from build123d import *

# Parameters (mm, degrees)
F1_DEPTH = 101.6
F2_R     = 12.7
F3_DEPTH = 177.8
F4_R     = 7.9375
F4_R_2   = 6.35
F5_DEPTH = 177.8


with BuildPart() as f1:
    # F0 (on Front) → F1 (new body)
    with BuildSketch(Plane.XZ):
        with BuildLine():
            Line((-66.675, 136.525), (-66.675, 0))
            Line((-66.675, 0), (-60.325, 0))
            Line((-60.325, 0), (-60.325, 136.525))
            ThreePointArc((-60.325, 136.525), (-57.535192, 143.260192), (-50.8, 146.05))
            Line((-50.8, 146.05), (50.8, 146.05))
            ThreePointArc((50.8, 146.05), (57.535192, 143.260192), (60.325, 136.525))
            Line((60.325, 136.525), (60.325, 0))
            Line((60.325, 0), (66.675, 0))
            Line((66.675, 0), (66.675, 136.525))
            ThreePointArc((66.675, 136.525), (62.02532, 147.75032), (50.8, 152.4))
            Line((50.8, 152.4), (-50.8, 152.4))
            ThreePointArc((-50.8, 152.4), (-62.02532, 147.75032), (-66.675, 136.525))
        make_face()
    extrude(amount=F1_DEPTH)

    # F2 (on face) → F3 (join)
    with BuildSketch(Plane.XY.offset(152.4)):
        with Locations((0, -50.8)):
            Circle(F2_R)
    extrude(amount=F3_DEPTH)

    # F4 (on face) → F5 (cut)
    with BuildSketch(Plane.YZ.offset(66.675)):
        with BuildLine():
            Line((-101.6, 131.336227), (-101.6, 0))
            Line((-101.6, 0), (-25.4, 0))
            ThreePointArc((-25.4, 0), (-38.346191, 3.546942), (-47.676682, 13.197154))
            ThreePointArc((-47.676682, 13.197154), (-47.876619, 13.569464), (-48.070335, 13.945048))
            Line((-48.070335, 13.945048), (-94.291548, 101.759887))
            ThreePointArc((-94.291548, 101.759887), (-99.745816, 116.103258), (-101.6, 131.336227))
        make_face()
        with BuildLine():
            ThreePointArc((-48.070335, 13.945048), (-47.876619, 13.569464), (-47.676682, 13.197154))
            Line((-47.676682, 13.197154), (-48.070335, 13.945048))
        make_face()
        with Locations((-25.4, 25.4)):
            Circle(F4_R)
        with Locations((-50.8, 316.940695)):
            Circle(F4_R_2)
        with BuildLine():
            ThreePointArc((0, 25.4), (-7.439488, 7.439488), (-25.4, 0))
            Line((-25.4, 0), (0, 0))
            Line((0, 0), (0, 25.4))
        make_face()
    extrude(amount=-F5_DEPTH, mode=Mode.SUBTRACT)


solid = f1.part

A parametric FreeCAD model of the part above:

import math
import FreeCAD as App
import Part
import Sketcher
from FreeCAD import Vector
Q = App.Units.Quantity

doc = App.newDocument("Part")
body = doc.addObject("PartDesign::Body", "Body")

# Sketch on XZ plane
sketch1 = body.newObject("Sketcher::SketchObject", "Sketch")
sketch1.AttachmentSupport = (doc.getObject("XZ_Plane"), [""])
sketch1.MapMode = "FlatFace"
sketch1.addGeometry([
    Part.LineSegment(Vector(-67, 137, 0), Vector(-67, 0, 0)),  # 0
    Part.LineSegment(Vector(-67, 0, 0), Vector(-60, 0, 0)),  # 1
    Part.LineSegment(Vector(-60, 0, 0), Vector(-60, 137, 0)),  # 2
    Part.ArcOfCircle(Part.Circle(Vector(-51, 137, 0), Vector(0, 0, 1), 10), math.radians(90), math.radians(180)),  # 3
    Part.LineSegment(Vector(-51, 146, 0), Vector(51, 146, 0)),  # 4
    Part.ArcOfCircle(Part.Circle(Vector(51, 137, 0), Vector(0, 0, 1), 10), math.radians(0), math.radians(90)),  # 5
    Part.LineSegment(Vector(60, 137, 0), Vector(60, 0, 0)),  # 6
    Part.LineSegment(Vector(60, 0, 0), Vector(67, 0, 0)),  # 7
    Part.LineSegment(Vector(67, 0, 0), Vector(67, 137, 0)),  # 8
    Part.ArcOfCircle(Part.Circle(Vector(51, 137, 0), Vector(0, 0, 1), 16), math.radians(0), math.radians(90)),  # 9
    Part.LineSegment(Vector(51, 152, 0), Vector(-51, 152, 0)),  # 10
    Part.ArcOfCircle(Part.Circle(Vector(-51, 137, 0), Vector(0, 0, 1), 16), math.radians(90), math.radians(180)),  # 11
], False)
sketch1.addConstraint([
    Sketcher.Constraint("Coincident", 0, 2, 1, 1),
    Sketcher.Constraint("Coincident", 1, 2, 2, 1),
    Sketcher.Constraint("Tangent", 2, 2, 3, 2),
    Sketcher.Constraint("Tangent", 3, 1, 4, 1),
    Sketcher.Constraint("Tangent", 4, 2, 5, 2),
    Sketcher.Constraint("Tangent", 5, 1, 6, 1),
    Sketcher.Constraint("Coincident", 6, 2, 7, 1),
    Sketcher.Constraint("Coincident", 7, 2, 8, 1),
    Sketcher.Constraint("Tangent", 8, 2, 9, 1),
    Sketcher.Constraint("Tangent", 9, 2, 10, 1),
    Sketcher.Constraint("Tangent", 10, 2, 11, 1),
    Sketcher.Constraint("Tangent", 11, 2, 0, 1),
    Sketcher.Constraint("Vertical", 0),
    Sketcher.Constraint("Horizontal", 1),
    Sketcher.Constraint("Vertical", 2),
    Sketcher.Constraint("Horizontal", 4),
    Sketcher.Constraint("Vertical", 6),
    Sketcher.Constraint("Horizontal", 7),
    Sketcher.Constraint("Vertical", 8),
    Sketcher.Constraint("Horizontal", 10),
    Sketcher.Constraint("Coincident", 9, 3, 5, 3),
    Sketcher.Constraint("Coincident", 11, 3, 3, 3),
    Sketcher.Constraint("Equal", 3, 5),
    Sketcher.Constraint("Symmetric", 1, 2, 6, 2, -1, 1),
    Sketcher.Constraint("PointOnObject", 0, 2, -1),
    Sketcher.Constraint("DistanceX", 4, 1, 4, 2, Q("4 in")),
    Sketcher.Constraint("DistanceY", -1, 1, 9, 2, Q("6 in")),
    Sketcher.Constraint("Radius", 3, Q("0.375 in")),
    Sketcher.Constraint("Radius", 9, Q("0.625 in")),
])
pad1 = body.newObject("PartDesign::Pad", "Pad")
pad1.Profile = sketch1
pad1.Length = Q("4 in")

# Sketch on XY plane
sketch2 = body.newObject("Sketcher::SketchObject", "Sketch001")
sketch2.AttachmentSupport = (doc.getObject("XY_Plane"), [""])
sketch2.MapMode = "FlatFace"
sketch2.AttachmentOffset = App.Placement(Vector(0, 0, 6 * 25.4), App.Rotation())
sketch2.addGeometry(Part.Circle(Vector(0, -51, 0), Vector(0, 0, 1), 13), False)
sketch2.addConstraint([
    Sketcher.Constraint("PointOnObject", 0, 3, -2),
    Sketcher.Constraint("Diameter", 0, Q("1 in")),
    Sketcher.Constraint("DistanceY", 0, 3, -1, 1, Q("2 in")),
])
pad2 = body.newObject("PartDesign::Pad", "Pad001")
pad2.Profile = sketch2
pad2.Length = Q("7 in")

# Sketch on YZ plane
sketch3 = body.newObject("Sketcher::SketchObject", "Sketch002")
sketch3.AttachmentSupport = (doc.getObject("YZ_Plane"), [""])
sketch3.MapMode = "FlatFace"
sketch3.AttachmentOffset = App.Placement(Vector(0, 0, 2.625 * 25.4), App.Rotation())
sketch3.addGeometry([
    Part.LineSegment(Vector(-101.6, 131.336227, 0), Vector(-101.6, 0, 0)),  # 0
    Part.LineSegment(Vector(-101.6, 0, 0), Vector(-25.4, 0, 0)),  # 1
    Part.ArcOfCircle(Part.Circle(Vector(-25.4, 25.4, 0), Vector(0, 0, 1), 25.4), math.radians(-151.286706), math.radians(-90)),  # 2
    Part.LineSegment(Vector(-47.676682, 13.197154, 0), Vector(-48.070335, 13.945048, 0)),  # 3
    Part.LineSegment(Vector(-48.070335, 13.945048, 0), Vector(-94.291548, 101.759887, 0)),  # 4
    Part.ArcOfCircle(Part.Circle(Vector(-38.1, 131.336228, 0), Vector(0, 0, 1), 63.5), math.radians(-179.999999), math.radians(-152.239989)),  # 5
    Part.Circle(Vector(-25.4, 25.4, 0), Vector(0, 0, 1), 7.9375),  # 6
    Part.Circle(Vector(-50.8, 316.940695, 0), Vector(0, 0, 1), 6.35),  # 7
    Part.ArcOfCircle(Part.Circle(Vector(-25.400001, 25.400001, 0), Vector(0, 0, 1), 25.400001), math.radians(-89.999998), math.radians(-0.000002)),  # 8
    Part.LineSegment(Vector(-25.4, 0, 0), Vector(0, 0, 0)),  # 9
    Part.LineSegment(Vector(0, 0, 0), Vector(0, 25.4, 0)),  # 10
], False)
sketch3.addConstraint([
    Sketcher.Constraint("Coincident", 0, 2, 1, 1),
    Sketcher.Constraint("Coincident", 1, 2, 2, 2),
    Sketcher.Constraint("Coincident", 2, 1, 3, 1),
    Sketcher.Constraint("Coincident", 3, 2, 4, 1),
    Sketcher.Constraint("Coincident", 4, 2, 5, 2),
    Sketcher.Constraint("Coincident", 5, 1, 0, 1),
    Sketcher.Constraint("Coincident", 8, 1, 9, 1),
    Sketcher.Constraint("Coincident", 9, 2, 10, 1),
    Sketcher.Constraint("Coincident", 10, 2, 8, 2),
    Sketcher.Constraint("Vertical", 0),
    Sketcher.Constraint("Horizontal", 1),
    Sketcher.Constraint("Horizontal", 9),
    Sketcher.Constraint("Vertical", 10),
    Sketcher.Constraint("Coincident", 9, 2, -1, 1),
    Sketcher.Constraint("Coincident", 6, 3, 2, 3),
    Sketcher.Constraint("Coincident", 8, 3, 2, 3),
    Sketcher.Constraint("Coincident", 8, 1, 1, 2),
    Sketcher.Constraint("Radius", 2, Q("1 in")),
    Sketcher.Constraint("Diameter", 7, Q("0.5 in")),
    Sketcher.Constraint("Radius", 5, Q("2.5 in")),
    Sketcher.Constraint("DistanceX", 1, 1, 1, 2, Q("3 in")),
    Sketcher.Constraint("DistanceX", 9, 1, 9, 2, Q("1 in")),
    Sketcher.Constraint("DistanceY", 10, 1, 10, 2, Q("1 in")),
    Sketcher.Constraint("Diameter", 6, Q("0.625 in")),
    Sketcher.Constraint("DistanceX", 7, 3, -1, 1, Q("2 in")),
    Sketcher.Constraint("DistanceY", 3, 2, 5, 1, Q("4.6217 in")),
    Sketcher.Constraint("DistanceY", 0, 2, 0, 1, 131.336227),
    Sketcher.Constraint("DistanceX", 2, 1, -1, 1, 47.676682),
    Sketcher.Constraint("DistanceX", 4, 2, -1, 1, 94.291548),
    Sketcher.Constraint("DistanceY", 3, 2, 4, 2, 87.814839),
    Sketcher.Constraint("Distance", 3, 0.845168),
    Sketcher.Constraint("DistanceY", -1, 1, 7, 3, 316.940695),
])
pocket1 = body.newObject("PartDesign::Pocket", "Pocket")
pocket1.Profile = sketch3
pocket1.Length = Q("7 in")

doc.recompute()
